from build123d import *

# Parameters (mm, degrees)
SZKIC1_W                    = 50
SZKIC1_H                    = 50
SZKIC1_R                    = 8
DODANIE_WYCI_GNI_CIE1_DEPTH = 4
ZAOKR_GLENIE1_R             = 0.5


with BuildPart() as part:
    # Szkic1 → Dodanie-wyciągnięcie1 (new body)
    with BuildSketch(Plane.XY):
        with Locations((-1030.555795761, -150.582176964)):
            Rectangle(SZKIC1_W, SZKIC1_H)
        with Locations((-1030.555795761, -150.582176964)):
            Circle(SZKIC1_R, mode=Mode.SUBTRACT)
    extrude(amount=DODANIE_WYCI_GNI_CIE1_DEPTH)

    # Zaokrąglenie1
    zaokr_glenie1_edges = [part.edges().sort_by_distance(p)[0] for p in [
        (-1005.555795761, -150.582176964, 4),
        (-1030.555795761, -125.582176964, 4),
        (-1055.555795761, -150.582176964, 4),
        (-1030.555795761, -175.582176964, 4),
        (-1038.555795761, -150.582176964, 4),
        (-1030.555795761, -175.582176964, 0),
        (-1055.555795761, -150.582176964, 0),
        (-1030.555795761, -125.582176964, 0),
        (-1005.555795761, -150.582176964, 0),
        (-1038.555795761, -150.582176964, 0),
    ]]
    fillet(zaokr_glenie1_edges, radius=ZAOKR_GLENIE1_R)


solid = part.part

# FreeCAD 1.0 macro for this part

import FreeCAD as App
import Part
import Sketcher
Q = App.Units.Quantity


def edges_at(feature, points):
    """Names of the edges that pass closest to the given points."""
    edges = feature.Shape.Edges
    near = lambda p: min(range(len(edges)), key=lambda i: edges[i].distToShape(Part.Vertex(*p))[0])
    return sorted({f"Edge{near(p) + 1}" for p in points})

doc = App.newDocument("Part")
body = doc.addObject("PartDesign::Body", "Body")

sketch1 = body.newObject("Sketcher::SketchObject", "Sketch")
sketch1.AttachmentSupport = (doc.getObject("XY_Plane"), [""])
sketch1.MapMode = "FlatFace"
sketch1.addGeometry(Part.LineSegment(App.Vector(-1055.555796, -125.582177, 0), App.Vector(-1055.555796, -175.582177, 0)), False)
sketch1.addGeometry(Part.LineSegment(App.Vector(-1055.555796, -175.582177, 0), App.Vector(-1005.555796, -175.582177, 0)), False)
sketch1.addGeometry(Part.LineSegment(App.Vector(-1005.555796, -175.582177, 0), App.Vector(-1005.555796, -125.582177, 0)), False)
sketch1.addGeometry(Part.LineSegment(App.Vector(-1005.555796, -125.582177, 0), App.Vector(-1055.555796, -125.582177, 0)), False)
sketch1.addGeometry(Part.Circle(App.Vector(-1030.555796, -150.582177, 0), App.Vector(0, 0, 1), 8), False)
sketch1.addConstraint(Sketcher.Constraint("Coincident", 0, 2, 1, 1))
sketch1.addConstraint(Sketcher.Constraint("Coincident", 1, 2, 2, 1))
sketch1.addConstraint(Sketcher.Constraint("Coincident", 2, 2, 3, 1))
sketch1.addConstraint(Sketcher.Constraint("Coincident", 3, 2, 0, 1))
sketch1.addConstraint(Sketcher.Constraint("Vertical", 0))
sketch1.addConstraint(Sketcher.Constraint("Horizontal", 1))
sketch1.addConstraint(Sketcher.Constraint("Vertical", 2))
sketch1.addConstraint(Sketcher.Constraint("Horizontal", 3))
sketch1.addConstraint(Sketcher.Constraint("Equal", 3, 0))
sketch1.addConstraint(Sketcher.Constraint("Diameter", 4, Q("16 mm")))
sketch1.addConstraint(Sketcher.Constraint("DistanceX", 1, 1, 1, 2, Q("50 mm")))
sketch1.addConstraint(Sketcher.Constraint("DistanceX", 0, 2, 4, 3, Q("25 mm")))
sketch1.addConstraint(Sketcher.Constraint("DistanceY", 0, 2, 4, 3, Q("25 mm")))
sketch1.addConstraint(Sketcher.Constraint("DistanceX", 4, 3, -1, 1, Q("1030.555796 mm")))
sketch1.addConstraint(Sketcher.Constraint("DistanceY", 4, 3, -1, 1, Q("150.582177 mm")))
pad1 = body.newObject("PartDesign::Pad", "Pad")
pad1.Profile = sketch1
pad1.Length = 4
doc.recompute()

fillet = body.newObject("PartDesign::Fillet", "Fillet")
fillet.Base = (pad1, edges_at(pad1, [
    (-1005.556, -150.582, 4),
    (-1030.556, -125.582, 4),
    (-1055.556, -150.582, 4),
    (-1030.556, -175.582, 4),
    (-1038.556, -150.582, 4),
    (-1030.556, -175.582, 0),
    (-1055.556, -150.582, 0),
    (-1030.556, -125.582, 0),
    (-1005.556, -150.582, 0),
    (-1038.556, -150.582, 0),
]))
fillet.Radius = 0.5

doc.recompute()
